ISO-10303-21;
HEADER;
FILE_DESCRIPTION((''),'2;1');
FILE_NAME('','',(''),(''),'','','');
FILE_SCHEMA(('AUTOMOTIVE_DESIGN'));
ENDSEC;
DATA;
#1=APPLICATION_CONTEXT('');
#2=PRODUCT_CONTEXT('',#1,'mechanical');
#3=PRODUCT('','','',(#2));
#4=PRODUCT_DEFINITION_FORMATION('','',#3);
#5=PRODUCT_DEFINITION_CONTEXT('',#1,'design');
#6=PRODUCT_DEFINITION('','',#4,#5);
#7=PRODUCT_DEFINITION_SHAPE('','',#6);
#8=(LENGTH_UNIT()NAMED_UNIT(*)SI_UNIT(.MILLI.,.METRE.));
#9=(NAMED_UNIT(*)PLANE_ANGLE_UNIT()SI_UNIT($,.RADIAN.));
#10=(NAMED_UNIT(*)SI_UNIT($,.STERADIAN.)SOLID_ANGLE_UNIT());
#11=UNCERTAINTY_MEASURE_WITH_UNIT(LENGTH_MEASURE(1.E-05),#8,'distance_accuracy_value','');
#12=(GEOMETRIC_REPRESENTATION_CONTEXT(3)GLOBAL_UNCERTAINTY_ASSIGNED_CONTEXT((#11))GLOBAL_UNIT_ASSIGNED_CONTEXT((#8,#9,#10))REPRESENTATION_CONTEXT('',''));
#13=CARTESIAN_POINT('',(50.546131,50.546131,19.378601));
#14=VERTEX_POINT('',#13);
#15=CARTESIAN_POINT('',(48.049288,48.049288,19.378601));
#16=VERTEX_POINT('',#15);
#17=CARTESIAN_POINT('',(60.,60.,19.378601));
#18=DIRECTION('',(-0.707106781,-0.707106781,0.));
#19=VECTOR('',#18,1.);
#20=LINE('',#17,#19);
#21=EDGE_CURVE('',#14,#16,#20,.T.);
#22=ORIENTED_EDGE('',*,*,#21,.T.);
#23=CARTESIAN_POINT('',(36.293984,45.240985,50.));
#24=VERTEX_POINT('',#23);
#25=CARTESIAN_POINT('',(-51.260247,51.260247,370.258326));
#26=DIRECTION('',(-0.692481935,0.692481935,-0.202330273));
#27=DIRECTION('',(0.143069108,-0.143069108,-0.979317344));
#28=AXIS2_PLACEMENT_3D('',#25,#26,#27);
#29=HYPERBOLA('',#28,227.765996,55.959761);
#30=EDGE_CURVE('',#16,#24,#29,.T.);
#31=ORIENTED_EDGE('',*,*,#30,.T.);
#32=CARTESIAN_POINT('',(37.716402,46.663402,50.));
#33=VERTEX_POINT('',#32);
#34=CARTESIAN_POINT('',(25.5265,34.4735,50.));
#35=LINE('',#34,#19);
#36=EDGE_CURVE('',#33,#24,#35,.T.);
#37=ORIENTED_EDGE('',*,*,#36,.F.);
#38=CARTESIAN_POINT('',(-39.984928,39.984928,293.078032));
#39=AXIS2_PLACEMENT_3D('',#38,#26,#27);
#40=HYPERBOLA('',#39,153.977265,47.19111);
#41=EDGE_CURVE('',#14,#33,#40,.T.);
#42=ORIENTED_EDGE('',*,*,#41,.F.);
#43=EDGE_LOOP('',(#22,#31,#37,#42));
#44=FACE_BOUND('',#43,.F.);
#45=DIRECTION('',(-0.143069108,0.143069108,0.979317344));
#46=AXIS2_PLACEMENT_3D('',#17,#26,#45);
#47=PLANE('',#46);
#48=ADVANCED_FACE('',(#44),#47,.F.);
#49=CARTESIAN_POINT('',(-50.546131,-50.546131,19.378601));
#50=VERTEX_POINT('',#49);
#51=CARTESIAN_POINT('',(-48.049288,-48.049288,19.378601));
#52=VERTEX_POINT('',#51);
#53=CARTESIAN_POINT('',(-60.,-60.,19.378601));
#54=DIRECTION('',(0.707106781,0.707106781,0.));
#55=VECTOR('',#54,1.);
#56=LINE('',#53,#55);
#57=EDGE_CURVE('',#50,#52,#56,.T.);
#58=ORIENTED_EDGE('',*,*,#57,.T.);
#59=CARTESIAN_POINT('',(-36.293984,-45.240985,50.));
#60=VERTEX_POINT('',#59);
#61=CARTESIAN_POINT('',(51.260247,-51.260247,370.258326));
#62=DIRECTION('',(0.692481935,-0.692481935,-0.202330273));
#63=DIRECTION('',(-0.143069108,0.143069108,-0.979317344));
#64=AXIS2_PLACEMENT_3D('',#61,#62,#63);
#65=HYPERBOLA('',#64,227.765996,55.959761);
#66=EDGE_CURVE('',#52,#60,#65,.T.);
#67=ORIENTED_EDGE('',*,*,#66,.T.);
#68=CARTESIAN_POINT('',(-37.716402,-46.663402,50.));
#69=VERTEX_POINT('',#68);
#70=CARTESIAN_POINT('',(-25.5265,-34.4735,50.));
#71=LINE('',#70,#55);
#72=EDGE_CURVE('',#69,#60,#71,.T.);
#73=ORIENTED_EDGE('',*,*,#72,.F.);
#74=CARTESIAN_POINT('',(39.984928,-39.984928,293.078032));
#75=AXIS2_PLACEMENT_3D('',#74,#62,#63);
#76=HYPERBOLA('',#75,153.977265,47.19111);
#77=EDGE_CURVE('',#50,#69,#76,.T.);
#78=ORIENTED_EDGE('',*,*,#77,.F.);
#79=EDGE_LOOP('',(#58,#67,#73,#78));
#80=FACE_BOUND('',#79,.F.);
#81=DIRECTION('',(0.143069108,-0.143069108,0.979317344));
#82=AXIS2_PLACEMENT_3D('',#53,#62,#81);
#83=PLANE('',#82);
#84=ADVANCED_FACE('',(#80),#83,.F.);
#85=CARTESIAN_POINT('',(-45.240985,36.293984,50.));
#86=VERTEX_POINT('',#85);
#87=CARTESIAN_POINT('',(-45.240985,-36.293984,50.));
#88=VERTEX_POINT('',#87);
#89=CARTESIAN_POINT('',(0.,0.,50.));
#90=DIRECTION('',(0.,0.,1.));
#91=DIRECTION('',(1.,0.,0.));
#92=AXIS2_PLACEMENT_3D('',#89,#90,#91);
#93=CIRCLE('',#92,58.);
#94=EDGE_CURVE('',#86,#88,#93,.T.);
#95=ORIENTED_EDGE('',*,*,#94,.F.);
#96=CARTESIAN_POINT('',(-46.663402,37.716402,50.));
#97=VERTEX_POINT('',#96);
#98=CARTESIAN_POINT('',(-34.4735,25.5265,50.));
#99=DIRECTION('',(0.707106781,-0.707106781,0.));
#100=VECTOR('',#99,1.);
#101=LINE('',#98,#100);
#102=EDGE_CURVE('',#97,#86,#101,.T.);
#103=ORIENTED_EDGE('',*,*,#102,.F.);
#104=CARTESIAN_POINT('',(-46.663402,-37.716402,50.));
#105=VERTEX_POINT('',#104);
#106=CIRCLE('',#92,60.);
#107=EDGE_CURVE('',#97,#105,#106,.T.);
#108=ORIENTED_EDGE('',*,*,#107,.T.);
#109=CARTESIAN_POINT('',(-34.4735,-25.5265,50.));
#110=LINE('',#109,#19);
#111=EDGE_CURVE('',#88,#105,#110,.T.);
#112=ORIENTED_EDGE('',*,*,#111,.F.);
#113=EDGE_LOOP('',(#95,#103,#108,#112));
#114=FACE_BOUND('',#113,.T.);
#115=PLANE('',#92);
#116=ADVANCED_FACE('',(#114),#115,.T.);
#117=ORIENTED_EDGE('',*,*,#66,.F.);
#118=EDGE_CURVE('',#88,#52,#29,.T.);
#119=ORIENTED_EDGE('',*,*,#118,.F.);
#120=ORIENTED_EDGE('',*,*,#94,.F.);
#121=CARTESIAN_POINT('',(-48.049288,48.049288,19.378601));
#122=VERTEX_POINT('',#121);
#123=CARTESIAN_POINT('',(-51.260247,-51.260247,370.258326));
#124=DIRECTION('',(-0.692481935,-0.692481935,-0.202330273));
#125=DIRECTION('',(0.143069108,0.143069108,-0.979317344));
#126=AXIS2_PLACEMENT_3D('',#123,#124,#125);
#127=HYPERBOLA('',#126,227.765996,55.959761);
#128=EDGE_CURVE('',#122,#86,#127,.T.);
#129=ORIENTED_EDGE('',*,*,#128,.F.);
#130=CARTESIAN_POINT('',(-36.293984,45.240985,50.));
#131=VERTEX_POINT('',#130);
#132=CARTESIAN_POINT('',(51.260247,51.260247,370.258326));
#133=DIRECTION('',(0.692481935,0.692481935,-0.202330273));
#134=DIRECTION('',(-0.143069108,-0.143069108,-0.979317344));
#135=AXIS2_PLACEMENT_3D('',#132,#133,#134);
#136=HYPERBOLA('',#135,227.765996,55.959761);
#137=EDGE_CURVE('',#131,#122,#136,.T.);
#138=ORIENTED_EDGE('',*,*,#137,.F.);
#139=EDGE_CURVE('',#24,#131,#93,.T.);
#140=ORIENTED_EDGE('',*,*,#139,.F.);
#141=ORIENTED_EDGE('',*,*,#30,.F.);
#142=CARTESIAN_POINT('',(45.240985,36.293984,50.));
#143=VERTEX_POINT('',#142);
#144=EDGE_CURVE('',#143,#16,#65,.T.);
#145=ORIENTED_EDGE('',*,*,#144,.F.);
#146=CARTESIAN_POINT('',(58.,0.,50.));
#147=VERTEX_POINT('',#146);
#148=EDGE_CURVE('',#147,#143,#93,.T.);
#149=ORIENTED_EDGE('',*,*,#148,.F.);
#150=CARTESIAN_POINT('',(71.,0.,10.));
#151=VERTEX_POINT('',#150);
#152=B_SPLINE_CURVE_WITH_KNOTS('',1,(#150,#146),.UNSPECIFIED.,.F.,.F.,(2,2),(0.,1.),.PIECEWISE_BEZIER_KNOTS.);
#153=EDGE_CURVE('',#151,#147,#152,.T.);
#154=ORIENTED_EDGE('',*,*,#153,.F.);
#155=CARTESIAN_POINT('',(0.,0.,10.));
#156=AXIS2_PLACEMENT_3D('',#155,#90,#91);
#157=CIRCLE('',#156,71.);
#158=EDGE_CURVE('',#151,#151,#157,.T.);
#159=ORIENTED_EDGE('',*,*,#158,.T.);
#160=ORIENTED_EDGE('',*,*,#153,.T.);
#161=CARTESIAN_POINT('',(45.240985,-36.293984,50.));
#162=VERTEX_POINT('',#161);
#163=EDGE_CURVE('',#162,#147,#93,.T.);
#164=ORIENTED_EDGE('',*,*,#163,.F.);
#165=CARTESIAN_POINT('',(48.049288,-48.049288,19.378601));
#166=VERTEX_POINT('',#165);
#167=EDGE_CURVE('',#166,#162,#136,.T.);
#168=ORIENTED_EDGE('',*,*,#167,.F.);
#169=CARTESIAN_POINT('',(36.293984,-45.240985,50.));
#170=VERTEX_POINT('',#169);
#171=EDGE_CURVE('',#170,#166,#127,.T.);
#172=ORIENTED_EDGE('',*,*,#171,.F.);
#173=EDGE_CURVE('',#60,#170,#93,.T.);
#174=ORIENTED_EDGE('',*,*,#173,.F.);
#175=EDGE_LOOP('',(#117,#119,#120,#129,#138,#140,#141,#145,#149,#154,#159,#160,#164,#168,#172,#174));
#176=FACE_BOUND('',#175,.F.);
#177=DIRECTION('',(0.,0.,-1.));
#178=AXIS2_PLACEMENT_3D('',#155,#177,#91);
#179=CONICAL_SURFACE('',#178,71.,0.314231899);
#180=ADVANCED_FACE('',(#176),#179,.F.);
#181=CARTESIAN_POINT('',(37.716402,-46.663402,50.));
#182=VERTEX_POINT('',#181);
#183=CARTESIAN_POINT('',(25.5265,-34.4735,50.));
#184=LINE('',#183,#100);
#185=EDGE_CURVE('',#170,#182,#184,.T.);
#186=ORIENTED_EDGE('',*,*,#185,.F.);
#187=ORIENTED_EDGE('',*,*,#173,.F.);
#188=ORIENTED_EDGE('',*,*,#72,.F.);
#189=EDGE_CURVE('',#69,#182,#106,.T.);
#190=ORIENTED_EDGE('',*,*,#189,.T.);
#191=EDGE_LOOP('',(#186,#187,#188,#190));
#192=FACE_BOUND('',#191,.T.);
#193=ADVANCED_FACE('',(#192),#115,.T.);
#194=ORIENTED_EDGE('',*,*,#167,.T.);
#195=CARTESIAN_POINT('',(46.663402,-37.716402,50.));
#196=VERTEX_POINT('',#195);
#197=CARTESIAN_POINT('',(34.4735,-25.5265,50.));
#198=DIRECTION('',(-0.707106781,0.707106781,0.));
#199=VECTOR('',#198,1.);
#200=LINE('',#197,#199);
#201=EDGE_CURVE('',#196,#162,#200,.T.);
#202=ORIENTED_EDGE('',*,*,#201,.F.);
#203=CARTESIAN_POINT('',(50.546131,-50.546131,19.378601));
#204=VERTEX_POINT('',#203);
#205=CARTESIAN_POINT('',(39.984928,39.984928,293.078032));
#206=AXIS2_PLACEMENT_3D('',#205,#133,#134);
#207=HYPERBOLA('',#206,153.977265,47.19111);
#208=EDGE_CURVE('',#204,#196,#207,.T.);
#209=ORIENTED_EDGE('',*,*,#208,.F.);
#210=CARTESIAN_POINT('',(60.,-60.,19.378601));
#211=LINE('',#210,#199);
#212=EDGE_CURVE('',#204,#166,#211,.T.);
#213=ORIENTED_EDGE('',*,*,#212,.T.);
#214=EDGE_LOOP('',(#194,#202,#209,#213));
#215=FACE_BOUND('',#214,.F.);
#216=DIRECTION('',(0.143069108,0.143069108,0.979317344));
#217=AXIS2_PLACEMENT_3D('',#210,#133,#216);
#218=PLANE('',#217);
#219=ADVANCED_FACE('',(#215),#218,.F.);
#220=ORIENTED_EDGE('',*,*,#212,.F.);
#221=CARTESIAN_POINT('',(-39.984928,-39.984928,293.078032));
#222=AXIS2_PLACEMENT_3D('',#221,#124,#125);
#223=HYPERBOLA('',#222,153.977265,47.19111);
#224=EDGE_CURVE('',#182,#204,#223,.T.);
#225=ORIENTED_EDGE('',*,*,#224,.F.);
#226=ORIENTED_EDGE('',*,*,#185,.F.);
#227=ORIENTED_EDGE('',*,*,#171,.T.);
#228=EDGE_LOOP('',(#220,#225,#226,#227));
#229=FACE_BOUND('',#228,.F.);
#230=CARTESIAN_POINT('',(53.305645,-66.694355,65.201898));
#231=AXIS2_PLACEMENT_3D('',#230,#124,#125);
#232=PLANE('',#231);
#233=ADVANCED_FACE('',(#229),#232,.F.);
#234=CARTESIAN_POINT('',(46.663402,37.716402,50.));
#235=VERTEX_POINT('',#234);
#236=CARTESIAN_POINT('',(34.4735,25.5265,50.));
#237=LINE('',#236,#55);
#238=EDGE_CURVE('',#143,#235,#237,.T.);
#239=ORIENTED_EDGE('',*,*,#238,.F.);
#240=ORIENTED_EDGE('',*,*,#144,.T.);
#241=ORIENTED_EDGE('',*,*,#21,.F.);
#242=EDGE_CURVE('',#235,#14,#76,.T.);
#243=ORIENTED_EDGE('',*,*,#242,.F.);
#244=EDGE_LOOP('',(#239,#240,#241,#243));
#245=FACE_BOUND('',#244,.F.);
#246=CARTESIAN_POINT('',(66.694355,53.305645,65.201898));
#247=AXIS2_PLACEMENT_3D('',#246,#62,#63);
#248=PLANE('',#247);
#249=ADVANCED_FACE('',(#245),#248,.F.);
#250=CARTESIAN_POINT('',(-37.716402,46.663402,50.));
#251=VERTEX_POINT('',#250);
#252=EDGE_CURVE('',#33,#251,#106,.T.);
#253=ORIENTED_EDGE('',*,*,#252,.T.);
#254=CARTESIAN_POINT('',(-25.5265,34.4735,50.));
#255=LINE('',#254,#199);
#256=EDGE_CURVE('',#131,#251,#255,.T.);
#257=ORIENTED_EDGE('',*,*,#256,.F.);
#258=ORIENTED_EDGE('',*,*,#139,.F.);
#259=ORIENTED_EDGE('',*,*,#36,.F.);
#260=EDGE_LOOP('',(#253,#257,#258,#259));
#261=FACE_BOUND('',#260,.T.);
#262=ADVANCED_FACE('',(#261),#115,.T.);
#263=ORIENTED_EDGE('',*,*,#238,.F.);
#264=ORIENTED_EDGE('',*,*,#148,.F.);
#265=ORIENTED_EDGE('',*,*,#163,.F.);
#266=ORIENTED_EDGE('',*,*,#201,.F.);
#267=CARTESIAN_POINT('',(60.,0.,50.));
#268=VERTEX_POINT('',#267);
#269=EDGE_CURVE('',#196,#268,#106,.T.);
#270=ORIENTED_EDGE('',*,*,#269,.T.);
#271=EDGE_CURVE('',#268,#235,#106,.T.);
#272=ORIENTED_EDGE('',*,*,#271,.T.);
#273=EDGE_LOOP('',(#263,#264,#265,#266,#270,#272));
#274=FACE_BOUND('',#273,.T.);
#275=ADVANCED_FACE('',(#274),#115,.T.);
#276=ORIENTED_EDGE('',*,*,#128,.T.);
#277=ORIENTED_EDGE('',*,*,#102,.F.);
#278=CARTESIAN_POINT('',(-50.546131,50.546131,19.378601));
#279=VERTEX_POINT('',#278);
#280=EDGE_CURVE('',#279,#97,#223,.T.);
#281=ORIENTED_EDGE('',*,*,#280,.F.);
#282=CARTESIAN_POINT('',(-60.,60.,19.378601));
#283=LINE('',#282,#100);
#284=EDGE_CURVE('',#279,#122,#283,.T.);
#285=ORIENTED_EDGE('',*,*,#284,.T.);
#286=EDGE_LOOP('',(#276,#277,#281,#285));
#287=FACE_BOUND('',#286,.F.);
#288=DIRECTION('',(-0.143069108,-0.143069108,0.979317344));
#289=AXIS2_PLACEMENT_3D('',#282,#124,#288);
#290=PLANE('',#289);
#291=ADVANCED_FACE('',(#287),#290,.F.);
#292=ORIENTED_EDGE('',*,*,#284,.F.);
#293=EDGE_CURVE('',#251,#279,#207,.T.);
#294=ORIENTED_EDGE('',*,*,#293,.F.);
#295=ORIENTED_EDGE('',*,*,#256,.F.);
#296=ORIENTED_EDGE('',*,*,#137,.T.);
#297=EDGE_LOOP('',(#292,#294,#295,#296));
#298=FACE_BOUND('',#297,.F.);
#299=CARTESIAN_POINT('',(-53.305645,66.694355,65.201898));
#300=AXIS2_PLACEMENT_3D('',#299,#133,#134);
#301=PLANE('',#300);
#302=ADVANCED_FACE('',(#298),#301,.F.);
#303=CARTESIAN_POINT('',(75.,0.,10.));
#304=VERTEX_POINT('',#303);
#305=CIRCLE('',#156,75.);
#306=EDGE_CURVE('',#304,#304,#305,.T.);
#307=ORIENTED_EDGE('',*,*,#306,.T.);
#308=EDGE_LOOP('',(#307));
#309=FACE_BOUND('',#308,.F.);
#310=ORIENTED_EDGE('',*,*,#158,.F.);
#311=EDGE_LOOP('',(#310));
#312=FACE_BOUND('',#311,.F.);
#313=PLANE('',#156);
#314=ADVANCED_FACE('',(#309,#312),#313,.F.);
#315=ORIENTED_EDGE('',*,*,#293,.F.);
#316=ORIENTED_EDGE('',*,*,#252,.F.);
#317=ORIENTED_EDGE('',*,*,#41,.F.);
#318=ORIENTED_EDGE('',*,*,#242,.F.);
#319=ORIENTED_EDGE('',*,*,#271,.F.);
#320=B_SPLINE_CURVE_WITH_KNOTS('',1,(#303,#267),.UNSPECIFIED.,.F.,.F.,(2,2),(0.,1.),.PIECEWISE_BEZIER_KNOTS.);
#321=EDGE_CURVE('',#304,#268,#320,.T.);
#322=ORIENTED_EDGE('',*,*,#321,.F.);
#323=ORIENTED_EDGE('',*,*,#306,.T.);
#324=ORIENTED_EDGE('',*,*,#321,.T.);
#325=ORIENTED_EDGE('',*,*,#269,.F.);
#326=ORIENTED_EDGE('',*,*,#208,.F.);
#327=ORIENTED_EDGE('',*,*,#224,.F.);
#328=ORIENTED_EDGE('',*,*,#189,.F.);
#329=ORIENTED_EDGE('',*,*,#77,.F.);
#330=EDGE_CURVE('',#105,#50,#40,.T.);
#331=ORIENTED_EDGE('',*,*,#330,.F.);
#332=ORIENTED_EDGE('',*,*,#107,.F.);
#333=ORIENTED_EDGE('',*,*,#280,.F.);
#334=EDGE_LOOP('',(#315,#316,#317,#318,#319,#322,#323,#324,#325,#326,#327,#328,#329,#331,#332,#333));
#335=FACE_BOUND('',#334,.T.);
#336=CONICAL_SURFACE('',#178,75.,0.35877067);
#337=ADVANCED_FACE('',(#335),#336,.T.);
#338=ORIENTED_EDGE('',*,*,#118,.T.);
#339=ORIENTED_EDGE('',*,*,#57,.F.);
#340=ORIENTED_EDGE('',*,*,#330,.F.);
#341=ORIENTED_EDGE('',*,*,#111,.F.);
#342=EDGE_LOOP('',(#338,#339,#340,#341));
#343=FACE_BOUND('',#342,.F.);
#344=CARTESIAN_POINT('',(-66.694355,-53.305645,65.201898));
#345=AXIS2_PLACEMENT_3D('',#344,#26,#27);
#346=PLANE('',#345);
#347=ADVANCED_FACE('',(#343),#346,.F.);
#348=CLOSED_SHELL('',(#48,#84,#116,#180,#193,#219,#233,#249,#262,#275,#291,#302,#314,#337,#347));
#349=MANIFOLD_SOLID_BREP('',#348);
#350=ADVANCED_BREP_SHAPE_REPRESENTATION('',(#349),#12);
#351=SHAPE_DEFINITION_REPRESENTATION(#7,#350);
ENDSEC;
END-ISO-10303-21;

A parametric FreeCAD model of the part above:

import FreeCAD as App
import Part
import Sketcher


def add_polygon(sketch, points):
    """Adds a closed chain of lines whose ends are joined by coincident constraints."""
    first, n = sketch.GeometryCount, len(points)
    for a, b in zip(points, points[1:] + points[:1]):
        sketch.addGeometry(Part.LineSegment(App.Vector(*a, 0), App.Vector(*b, 0)), False)
    for i in range(n):
        sketch.addConstraint(Sketcher.Constraint("Coincident", first + i, 2, first + (i + 1) % n, 1))

doc = App.newDocument("Part")
body = doc.addObject("PartDesign::Body", "Body")

sketch1 = body.newObject("Sketcher::SketchObject", "Sketch")
sketch1.AttachmentSupport = (doc.getObject("XY_Plane"), [""])
sketch1.MapMode = "FlatFace"
sketch1.AttachmentOffset = App.Placement(App.Vector(0, 0, 10), App.Rotation())
sketch1.addGeometry(Part.Circle(App.Vector(0, 0, 0), App.Vector(0, 0, 1), 71), False)
sketch1.addConstraint([
    Sketcher.Constraint("Coincident", 0, 3, -1, 1),
    Sketcher.Constraint("Diameter", 0, 142.0),
])

sketch2 = body.newObject("Sketcher::SketchObject", "Sketch001")
sketch2.AttachmentSupport = (doc.getObject("XY_Plane"), [""])
sketch2.MapMode = "FlatFace"
sketch2.AttachmentOffset = App.Placement(App.Vector(0, 0, 50), App.Rotation())
sketch2.addGeometry(Part.Circle(App.Vector(0, 0, 0), App.Vector(0, 0, 1), 58), False)
sketch2.addConstraint([
    Sketcher.Constraint("Coincident", 0, 3, -1, 1),
    Sketcher.Constraint("Diameter", 0, 116.0),
])

additiveloft = body.newObject("PartDesign::AdditiveLoft", "AdditiveLoft")
additiveloft.Profile = sketch1
additiveloft.Sections = [sketch2]
body2 = doc.addObject("PartDesign::Body", "Body001")

sketch3 = body2.newObject("Sketcher::SketchObject", "Sketch002")
sketch3.AttachmentSupport = (doc.getObject("XY_Plane001"), [""])
sketch3.MapMode = "FlatFace"
sketch3.AttachmentOffset = App.Placement(App.Vector(0, 0, 10), App.Rotation())
sketch3.addGeometry(Part.Circle(App.Vector(0, 0, 0), App.Vector(0, 0, 1), 75), False)
sketch3.addConstraint([
    Sketcher.Constraint("Coincident", 0, 3, -1, 1),
    Sketcher.Constraint("Diameter", 0, 150.0),
])

sketch4 = body2.newObject("Sketcher::SketchObject", "Sketch003")
sketch4.AttachmentSupport = (doc.getObject("XY_Plane001"), [""])
sketch4.MapMode = "FlatFace"
sketch4.AttachmentOffset = App.Placement(App.Vector(0, 0, 50), App.Rotation())
sketch4.addGeometry(Part.Circle(App.Vector(0, 0, 0), App.Vector(0, 0, 1), 60), False)
sketch4.addConstraint([
    Sketcher.Constraint("Coincident", 0, 3, -1, 1),
    Sketcher.Constraint("Diameter", 0, 120.0),
])

additiveloft2 = body2.newObject("PartDesign::AdditiveLoft", "AdditiveLoft001")
additiveloft2.Profile = sketch3
additiveloft2.Sections = [sketch4]
doc.recompute()

boolean = body2.newObject("PartDesign::Boolean", "Boolean")
boolean.Type = "Cut"
boolean.addObjects([body])

sketch5 = body2.newObject("Sketcher::SketchObject", "Sketch004")
sketch5.Placement = App.Placement(App.Vector(-60, -60, 0), App.Rotation(App.Vector(-0.707106781, 0.707106781, 0), App.Vector(0, 0, 0.999999999), App.Vector(0.707106781, 0.707106781, 0), "ZXY"))
add_polygon(sketch5, [(0, 19), (9, 65), (-9, 65)])
sketch5.addConstraint([
    Sketcher.Constraint("Horizontal", 1),
    Sketcher.Constraint("PointOnObject", 2, 2, -2),
    Sketcher.Constraint("Equal", 0, 2),
    Sketcher.Constraint("DistanceY", -1, 1, 2, 2, 19.378601),
    Sketcher.Constraint("Distance", 0, 46.79106),
    Sketcher.Constraint("DistanceX", 1, 2, 1, 1, 18.934496),
])
pocket1 = body2.newObject("PartDesign::Pocket", "Pocket")
pocket1.Profile = sketch5
pocket1.Length = 31
pocket1.Reversed = True
doc.recompute()

polarpattern = body2.newObject("PartDesign::PolarPattern", "PolarPattern")
polarpattern.Originals = [pocket1]
polarpattern.Axis = (doc.getObject("Z_Axis001"), [""])
polarpattern.Angle = 360
polarpattern.Occurrences = 4
body2.Tip = polarpattern

doc.recompute()
